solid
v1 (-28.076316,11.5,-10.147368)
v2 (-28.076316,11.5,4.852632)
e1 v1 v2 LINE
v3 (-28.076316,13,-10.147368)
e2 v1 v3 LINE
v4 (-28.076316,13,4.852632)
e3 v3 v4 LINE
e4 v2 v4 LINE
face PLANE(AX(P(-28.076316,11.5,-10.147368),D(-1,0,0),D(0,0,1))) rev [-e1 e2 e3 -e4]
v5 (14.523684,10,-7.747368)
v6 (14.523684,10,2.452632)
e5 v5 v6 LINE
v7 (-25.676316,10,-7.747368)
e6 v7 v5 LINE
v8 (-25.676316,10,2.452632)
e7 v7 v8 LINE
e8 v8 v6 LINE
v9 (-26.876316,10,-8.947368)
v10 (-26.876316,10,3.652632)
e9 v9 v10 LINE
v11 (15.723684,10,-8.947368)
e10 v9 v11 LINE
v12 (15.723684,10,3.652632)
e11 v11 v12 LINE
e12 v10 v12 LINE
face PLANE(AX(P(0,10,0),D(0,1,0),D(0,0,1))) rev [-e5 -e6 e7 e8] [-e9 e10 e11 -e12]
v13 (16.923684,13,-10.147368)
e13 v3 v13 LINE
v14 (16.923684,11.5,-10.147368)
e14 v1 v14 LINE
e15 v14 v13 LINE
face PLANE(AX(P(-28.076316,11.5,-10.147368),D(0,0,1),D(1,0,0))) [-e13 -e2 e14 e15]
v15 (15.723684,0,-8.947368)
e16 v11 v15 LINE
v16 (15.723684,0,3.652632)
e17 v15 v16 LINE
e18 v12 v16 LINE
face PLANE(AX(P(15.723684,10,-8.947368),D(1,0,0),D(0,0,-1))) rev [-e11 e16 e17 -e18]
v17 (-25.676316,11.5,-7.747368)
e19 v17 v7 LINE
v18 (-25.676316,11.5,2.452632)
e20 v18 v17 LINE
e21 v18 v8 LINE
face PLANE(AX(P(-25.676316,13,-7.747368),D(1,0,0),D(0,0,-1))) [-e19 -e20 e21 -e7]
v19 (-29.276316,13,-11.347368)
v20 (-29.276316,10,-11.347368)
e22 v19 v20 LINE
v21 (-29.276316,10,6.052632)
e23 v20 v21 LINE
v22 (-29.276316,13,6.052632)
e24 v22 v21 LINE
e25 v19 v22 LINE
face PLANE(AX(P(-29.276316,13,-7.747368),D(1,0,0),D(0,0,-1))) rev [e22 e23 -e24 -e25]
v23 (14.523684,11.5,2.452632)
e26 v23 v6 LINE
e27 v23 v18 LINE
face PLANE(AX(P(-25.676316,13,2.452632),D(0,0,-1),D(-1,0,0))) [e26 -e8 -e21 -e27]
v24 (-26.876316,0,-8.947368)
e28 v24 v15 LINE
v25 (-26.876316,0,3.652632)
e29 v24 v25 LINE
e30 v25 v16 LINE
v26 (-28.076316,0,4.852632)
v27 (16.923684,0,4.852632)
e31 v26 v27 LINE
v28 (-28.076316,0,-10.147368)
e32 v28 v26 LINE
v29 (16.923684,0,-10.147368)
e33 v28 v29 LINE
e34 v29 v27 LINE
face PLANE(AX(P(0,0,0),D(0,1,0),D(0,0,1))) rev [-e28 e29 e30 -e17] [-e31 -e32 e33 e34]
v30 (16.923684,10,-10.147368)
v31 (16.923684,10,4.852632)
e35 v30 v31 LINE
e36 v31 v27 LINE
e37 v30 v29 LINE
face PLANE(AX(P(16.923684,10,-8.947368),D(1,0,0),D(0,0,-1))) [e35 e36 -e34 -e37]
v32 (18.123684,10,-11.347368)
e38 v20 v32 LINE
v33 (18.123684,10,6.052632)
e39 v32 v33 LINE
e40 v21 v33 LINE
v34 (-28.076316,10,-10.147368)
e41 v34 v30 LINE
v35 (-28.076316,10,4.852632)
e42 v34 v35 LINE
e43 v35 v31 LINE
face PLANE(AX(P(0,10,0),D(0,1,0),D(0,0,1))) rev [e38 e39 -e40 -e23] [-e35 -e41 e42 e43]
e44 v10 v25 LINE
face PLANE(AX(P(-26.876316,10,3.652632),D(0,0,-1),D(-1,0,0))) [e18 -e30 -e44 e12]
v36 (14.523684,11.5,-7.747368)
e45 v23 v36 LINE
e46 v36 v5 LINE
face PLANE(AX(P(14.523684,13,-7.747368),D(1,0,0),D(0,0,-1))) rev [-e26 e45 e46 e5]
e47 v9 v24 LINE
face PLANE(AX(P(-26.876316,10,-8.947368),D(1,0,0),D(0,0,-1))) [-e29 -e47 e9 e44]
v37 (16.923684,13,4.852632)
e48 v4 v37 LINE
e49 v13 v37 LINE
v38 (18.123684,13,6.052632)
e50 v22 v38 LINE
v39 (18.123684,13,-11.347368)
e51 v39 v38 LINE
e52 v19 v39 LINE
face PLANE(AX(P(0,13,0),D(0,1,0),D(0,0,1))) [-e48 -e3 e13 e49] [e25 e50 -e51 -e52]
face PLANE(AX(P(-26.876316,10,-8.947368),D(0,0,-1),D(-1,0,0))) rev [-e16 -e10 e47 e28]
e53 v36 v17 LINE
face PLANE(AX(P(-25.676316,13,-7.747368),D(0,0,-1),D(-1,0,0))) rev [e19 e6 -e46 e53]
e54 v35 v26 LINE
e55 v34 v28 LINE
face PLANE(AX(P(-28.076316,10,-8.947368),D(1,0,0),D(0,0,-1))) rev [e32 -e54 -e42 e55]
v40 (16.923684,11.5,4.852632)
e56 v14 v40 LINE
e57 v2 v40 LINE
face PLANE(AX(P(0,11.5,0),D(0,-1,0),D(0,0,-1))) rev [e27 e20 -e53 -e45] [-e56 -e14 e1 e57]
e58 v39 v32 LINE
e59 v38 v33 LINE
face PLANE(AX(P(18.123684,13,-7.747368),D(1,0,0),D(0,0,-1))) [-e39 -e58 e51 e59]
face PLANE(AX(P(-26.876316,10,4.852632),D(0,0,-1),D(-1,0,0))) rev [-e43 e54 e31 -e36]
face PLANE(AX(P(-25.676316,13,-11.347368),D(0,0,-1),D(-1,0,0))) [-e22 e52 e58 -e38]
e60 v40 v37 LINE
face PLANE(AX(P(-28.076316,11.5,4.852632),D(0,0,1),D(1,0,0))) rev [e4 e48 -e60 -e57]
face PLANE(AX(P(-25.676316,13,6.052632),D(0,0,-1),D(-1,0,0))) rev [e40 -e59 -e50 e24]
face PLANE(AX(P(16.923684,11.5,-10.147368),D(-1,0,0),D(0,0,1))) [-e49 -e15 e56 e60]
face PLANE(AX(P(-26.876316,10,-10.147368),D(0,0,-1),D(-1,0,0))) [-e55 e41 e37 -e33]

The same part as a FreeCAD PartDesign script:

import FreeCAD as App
import Part
import Sketcher

V = App.Vector
Q = App.Units.Quantity


def add_polygon(sketch, points):
    """Adds a closed chain of lines whose ends are joined by coincident constraints."""
    first, n = sketch.GeometryCount, len(points)
    for a, b in zip(points, points[1:] + points[:1]):
        sketch.addGeometry(Part.LineSegment(App.Vector(*a, 0), App.Vector(*b, 0)), False)
    for i in range(n):
        sketch.addConstraint(Sketcher.Constraint("Coincident", first + i, 2, first + (i + 1) % n, 1))

doc = App.newDocument("Part")
params = doc.addObject("Spreadsheet::Sheet", "Params")
for row, (alias, value) in enumerate([
    ("sketch1_width", "45 mm"),
    ("sketch1_height", "15 mm"),
    ("sketch1_width2", "42.6 mm"),
    ("sketch1_height2", "12.6 mm"),
    ("pad1_length", "10 mm"),
    ("sketch2_width", "47.4 mm"),
    ("sketch2_width2", "40.2 mm"),
    ("sketch2_height", "17.4 mm"),
    ("sketch2_height2", "10.2 mm"),
    ("pad2_length", "3 mm"),
    ("sketch3_width", "45 mm"),
    ("sketch3_height", "15 mm"),
    ("pocket1_length", "1.5 mm"),
], start=1):
    params.set(f"A{row}", alias)
    params.set(f"B{row}", "=" + value)
    params.setAlias(f"B{row}", alias)

body = doc.addObject("PartDesign::Body", "Body")

sketch1 = body.newObject("Sketcher::SketchObject", "Sketch")
sketch1.AttachmentSupport = (doc.getObject("XZ_Plane"), [""])
sketch1.MapMode = "FlatFace"
add_polygon(sketch1, [(-28, -10), (-28, 5), (17, 5), (17, -10)])
add_polygon(sketch1, [(16, 4), (-27, 4), (-27, -9), (16, -9)])
sketch1.addConstraint([
    Sketcher.Constraint("Vertical", 0),
    Sketcher.Constraint("Horizontal", 1),
    Sketcher.Constraint("Vertical", 2),
    Sketcher.Constraint("Horizontal", 3),
    Sketcher.Constraint("Horizontal", 4),
    Sketcher.Constraint("Vertical", 5),
    Sketcher.Constraint("Horizontal", 6),
    Sketcher.Constraint("Vertical", 7),
    Sketcher.Constraint("DistanceX", 1, 1, 1, 2, Q("45 mm")),
    Sketcher.Constraint("DistanceY", 0, 1, 0, 2, Q("15 mm")),
    Sketcher.Constraint("DistanceX", 4, 2, 4, 1, Q("42.6 mm")),
    Sketcher.Constraint("DistanceY", 5, 2, 5, 1, Q("12.6 mm")),
    Sketcher.Constraint("DistanceX", 0, 2, 4, 2, Q("1.2 mm")),
    Sketcher.Constraint("DistanceY", 4, 2, 0, 2, Q("1.2 mm")),
    Sketcher.Constraint("DistanceY", -1, 1, 0, 2, Q("4.852632 mm")),
    Sketcher.Constraint("DistanceX", 0, 2, -1, 1, Q("28.076316 mm")),
])
sketch1.setExpression("Constraints[16]", "Params.sketch1_width")
sketch1.setExpression("Constraints[17]", "Params.sketch1_height")
sketch1.setExpression("Constraints[18]", "Params.sketch1_width2")
sketch1.setExpression("Constraints[19]", "Params.sketch1_height2")
pad1 = body.newObject("PartDesign::Pad", "Pad")
pad1.Profile = sketch1
pad1.setExpression("Length", "Params.pad1_length")
pad1.Reversed = True

sketch2 = body.newObject("Sketcher::SketchObject", "Sketch001")
sketch2.AttachmentSupport = (doc.getObject("XZ_Plane"), [""])
sketch2.MapMode = "FlatFace"
sketch2.AttachmentOffset = App.Placement(V(0, 0, -10), App.Rotation())
add_polygon(sketch2, [(-29, -11), (-29, 6), (18, 6), (18, -11)])
add_polygon(sketch2, [(15, 2), (-26, 2), (-26, -8), (15, -8)])
sketch2.addConstraint([
    Sketcher.Constraint("Vertical", 0),
    Sketcher.Constraint("Horizontal", 1),
    Sketcher.Constraint("Vertical", 2),
    Sketcher.Constraint("Horizontal", 3),
    Sketcher.Constraint("Horizontal", 4),
    Sketcher.Constraint("Vertical", 5),
    Sketcher.Constraint("Horizontal", 6),
    Sketcher.Constraint("Vertical", 7),
    Sketcher.Constraint("DistanceX", 1, 1, 1, 2, Q("47.4 mm")),
    Sketcher.Constraint("DistanceX", 4, 2, 4, 1, Q("40.2 mm")),
    Sketcher.Constraint("DistanceY", 0, 1, 0, 2, Q("17.4 mm")),
    Sketcher.Constraint("DistanceY", 5, 2, 5, 1, Q("10.2 mm")),
    Sketcher.Constraint("DistanceX", 0, 2, 4, 2, Q("3.6 mm")),
    Sketcher.Constraint("DistanceY", 4, 2, 0, 2, Q("3.6 mm")),
    Sketcher.Constraint("DistanceY", -1, 1, 0, 2, Q("6.052632 mm")),
    Sketcher.Constraint("DistanceX", 0, 2, -1, 1, Q("29.276316 mm")),
])
sketch2.setExpression("Constraints[16]", "Params.sketch2_width")
sketch2.setExpression("Constraints[17]", "Params.sketch2_width2")
sketch2.setExpression("Constraints[18]", "Params.sketch2_height")
sketch2.setExpression("Constraints[19]", "Params.sketch2_height2")
pad2 = body.newObject("PartDesign::Pad", "Pad001")
pad2.Profile = sketch2
pad2.setExpression("Length", "Params.pad2_length")
pad2.Reversed = True

sketch3 = body.newObject("Sketcher::SketchObject", "Sketch002")
sketch3.AttachmentSupport = (doc.getObject("XZ_Plane"), [""])
sketch3.MapMode = "FlatFace"
sketch3.AttachmentOffset = App.Placement(V(0, 0, -13), App.Rotation())
add_polygon(sketch3, [(-28, -10), (-28, 5), (17, 5), (17, -10)])
sketch3.addConstraint([
    Sketcher.Constraint("Vertical", 0),
    Sketcher.Constraint("Horizontal", 1),
    Sketcher.Constraint("Vertical", 2),
    Sketcher.Constraint("Horizontal", 3),
    Sketcher.Constraint("DistanceX", 1, 1, 1, 2, Q("45 mm")),
    Sketcher.Constraint("DistanceY", 0, 1, 0, 2, Q("15 mm")),
    Sketcher.Constraint("DistanceY", -1, 1, 0, 2, Q("4.852632 mm")),
    Sketcher.Constraint("DistanceX", 0, 2, -1, 1, Q("28.076316 mm")),
])
sketch3.setExpression("Constraints[8]", "Params.sketch3_width")
sketch3.setExpression("Constraints[9]", "Params.sketch3_height")
pocket1 = body.newObject("PartDesign::Pocket", "Pocket")
pocket1.Profile = sketch3
pocket1.setExpression("Length", "Params.pocket1_length")
pocket1.Reversed = True

doc.recompute()
